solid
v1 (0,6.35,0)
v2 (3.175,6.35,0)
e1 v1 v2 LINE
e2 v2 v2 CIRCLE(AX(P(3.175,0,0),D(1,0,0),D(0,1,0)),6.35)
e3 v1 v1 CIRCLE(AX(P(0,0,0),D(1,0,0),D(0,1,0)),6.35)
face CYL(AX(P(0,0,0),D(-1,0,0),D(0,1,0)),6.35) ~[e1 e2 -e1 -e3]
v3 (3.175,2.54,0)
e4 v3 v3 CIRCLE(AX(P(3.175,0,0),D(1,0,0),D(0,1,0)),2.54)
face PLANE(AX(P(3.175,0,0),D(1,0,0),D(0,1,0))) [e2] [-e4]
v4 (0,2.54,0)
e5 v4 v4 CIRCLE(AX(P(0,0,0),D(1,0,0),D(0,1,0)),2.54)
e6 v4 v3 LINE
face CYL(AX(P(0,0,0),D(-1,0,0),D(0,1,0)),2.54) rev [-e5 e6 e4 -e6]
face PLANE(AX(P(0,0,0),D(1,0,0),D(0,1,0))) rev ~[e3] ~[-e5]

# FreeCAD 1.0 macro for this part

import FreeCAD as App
import Part
import Sketcher
Q = App.Units.Quantity

doc = App.newDocument("Part")
body = doc.addObject("PartDesign::Body", "Body")

sketch1 = doc.addObject("Sketcher::SketchObject", "Sketch")
body.addObject(sketch1)
sketch1.AttachmentSupport = (doc.YZ_Plane, [""])
sketch1.MapMode = "FlatFace"
sketch1.addGeometry([
    Part.Circle(App.Vector(0, 0, 0), App.Vector(0, 0, 1), 6.3),
    Part.Circle(App.Vector(0, 0, 0), App.Vector(0, 0, 1), 2.5),
], False)
sketch1.addConstraint([
    Sketcher.Constraint("Coincident", 0, 3, -1, 1),
    Sketcher.Constraint("Coincident", 1, 3, -1, 1),
    Sketcher.Constraint("Diameter", 1, Q("0.2 in")),
    Sketcher.Constraint("Diameter", 0, Q("0.5 in")),
])
pad1 = doc.addObject("PartDesign::Pad", "Pad")
body.addObject(pad1)
pad1.Profile = sketch1
pad1.Length = Q("0.125 in")

doc.recompute()
